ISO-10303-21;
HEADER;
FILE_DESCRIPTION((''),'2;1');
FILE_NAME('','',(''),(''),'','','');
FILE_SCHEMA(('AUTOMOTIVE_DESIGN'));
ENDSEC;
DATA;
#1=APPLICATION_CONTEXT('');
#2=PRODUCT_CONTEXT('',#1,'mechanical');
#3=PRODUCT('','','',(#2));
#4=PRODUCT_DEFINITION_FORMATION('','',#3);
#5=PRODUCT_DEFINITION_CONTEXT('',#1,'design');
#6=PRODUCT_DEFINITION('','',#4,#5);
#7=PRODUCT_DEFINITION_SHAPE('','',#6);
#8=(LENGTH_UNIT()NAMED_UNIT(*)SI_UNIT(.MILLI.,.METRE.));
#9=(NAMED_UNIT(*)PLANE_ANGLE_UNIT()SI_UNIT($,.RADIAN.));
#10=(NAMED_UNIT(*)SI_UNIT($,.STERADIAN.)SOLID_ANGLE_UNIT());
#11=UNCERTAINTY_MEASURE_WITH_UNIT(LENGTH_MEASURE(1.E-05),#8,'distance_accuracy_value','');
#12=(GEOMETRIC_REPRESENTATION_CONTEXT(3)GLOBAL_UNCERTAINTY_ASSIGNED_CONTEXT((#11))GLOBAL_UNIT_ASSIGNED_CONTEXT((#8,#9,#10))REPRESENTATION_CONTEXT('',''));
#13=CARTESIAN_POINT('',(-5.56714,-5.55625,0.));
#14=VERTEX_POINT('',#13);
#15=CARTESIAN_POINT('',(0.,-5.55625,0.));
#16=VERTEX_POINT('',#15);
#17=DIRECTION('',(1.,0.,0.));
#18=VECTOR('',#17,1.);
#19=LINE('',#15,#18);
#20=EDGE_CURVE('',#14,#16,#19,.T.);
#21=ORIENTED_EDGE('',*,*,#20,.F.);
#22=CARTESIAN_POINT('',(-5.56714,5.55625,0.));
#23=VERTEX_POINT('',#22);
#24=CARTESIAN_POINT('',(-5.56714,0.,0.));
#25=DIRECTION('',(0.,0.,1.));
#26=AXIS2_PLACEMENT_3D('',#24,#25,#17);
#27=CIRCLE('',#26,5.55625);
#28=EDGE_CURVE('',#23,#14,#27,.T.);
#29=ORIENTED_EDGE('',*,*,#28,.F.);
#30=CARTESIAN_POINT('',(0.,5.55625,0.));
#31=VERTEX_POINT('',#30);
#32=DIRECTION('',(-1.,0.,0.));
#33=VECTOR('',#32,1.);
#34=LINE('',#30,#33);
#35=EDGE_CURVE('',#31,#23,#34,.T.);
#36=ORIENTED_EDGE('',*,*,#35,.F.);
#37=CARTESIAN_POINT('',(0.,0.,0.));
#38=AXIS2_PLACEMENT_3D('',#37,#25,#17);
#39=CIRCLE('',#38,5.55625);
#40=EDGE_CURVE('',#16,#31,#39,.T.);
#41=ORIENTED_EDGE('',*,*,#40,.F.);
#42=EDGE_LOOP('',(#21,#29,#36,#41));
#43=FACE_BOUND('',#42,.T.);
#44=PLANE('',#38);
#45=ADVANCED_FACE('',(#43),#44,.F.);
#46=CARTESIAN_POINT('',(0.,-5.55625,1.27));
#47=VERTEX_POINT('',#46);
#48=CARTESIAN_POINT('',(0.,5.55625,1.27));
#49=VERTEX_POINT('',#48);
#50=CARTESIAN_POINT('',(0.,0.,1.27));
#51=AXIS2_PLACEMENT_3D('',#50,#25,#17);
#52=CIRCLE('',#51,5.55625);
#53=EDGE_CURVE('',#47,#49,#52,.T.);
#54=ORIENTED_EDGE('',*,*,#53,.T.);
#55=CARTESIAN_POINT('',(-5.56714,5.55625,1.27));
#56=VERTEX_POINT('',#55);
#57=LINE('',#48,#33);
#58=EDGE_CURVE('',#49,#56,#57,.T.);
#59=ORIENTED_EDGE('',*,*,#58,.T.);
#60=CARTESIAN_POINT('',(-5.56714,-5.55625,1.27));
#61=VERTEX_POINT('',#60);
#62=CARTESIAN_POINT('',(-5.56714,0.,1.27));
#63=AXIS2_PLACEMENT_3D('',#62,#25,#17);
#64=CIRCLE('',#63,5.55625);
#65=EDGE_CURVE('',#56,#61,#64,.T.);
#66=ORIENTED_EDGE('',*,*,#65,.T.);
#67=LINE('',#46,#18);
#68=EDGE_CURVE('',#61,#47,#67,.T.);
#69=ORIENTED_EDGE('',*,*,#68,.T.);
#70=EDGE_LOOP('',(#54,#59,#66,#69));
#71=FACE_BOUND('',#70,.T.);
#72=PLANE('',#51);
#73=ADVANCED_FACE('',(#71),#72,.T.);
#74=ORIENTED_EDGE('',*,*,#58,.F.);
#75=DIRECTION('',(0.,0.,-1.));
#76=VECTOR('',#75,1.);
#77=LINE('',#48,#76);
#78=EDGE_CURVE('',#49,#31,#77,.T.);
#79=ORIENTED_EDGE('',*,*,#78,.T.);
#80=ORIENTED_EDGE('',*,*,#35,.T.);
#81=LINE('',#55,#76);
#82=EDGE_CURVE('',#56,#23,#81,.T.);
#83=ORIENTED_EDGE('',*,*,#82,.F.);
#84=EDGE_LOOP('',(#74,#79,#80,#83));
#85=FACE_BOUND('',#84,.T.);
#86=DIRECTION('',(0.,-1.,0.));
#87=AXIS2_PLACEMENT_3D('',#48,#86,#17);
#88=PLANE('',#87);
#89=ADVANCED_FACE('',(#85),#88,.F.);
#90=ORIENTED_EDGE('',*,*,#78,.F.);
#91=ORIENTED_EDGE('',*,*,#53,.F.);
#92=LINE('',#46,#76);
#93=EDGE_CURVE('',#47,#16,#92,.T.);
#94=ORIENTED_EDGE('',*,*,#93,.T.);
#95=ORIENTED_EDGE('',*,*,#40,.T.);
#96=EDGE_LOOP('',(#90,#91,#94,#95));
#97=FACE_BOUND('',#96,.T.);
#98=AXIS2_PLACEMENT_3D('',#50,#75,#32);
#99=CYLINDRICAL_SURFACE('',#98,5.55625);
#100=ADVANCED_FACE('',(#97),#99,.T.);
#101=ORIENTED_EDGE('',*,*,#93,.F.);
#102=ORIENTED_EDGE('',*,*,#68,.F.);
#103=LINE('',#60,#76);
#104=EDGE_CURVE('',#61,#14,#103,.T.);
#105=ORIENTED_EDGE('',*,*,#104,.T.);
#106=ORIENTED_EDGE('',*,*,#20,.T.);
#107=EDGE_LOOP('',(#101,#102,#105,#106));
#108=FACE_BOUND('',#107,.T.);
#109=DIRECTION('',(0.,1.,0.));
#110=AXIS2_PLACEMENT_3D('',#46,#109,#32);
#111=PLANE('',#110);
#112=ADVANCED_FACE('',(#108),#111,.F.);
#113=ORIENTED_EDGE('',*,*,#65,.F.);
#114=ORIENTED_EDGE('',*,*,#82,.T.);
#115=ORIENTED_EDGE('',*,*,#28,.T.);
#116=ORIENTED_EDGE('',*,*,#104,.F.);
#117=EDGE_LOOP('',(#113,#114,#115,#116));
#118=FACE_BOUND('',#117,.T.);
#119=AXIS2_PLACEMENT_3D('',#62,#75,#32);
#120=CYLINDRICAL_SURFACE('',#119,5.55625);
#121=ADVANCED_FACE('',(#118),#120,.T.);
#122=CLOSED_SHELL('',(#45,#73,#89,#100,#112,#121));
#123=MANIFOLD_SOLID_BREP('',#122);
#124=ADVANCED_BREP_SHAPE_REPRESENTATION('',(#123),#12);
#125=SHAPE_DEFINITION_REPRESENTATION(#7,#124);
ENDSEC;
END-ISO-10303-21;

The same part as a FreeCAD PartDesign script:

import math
import FreeCAD as App
import Part
import Sketcher
from FreeCAD import Vector
Q = App.Units.Quantity

doc = App.newDocument("Part")
params = doc.addObject("Spreadsheet::Sheet", "Params")
for row, (alias, value) in enumerate([
    ("sketch1_radius", "0.21875 in"),
    ("pad1_length", "0.05 in"),
], start=1):
    params.set(f"A{row}", alias)
    params.set(f"B{row}", "=" + value)
    params.setAlias(f"B{row}", alias)

body = doc.addObject("PartDesign::Body", "Body")

sketch1 = body.newObject("Sketcher::SketchObject", "Sketch")
sketch1.AttachmentSupport = (doc.getObject("XY_Plane"), [""])
sketch1.MapMode = "FlatFace"
sketch1.addGeometry(Part.LineSegment(Vector(0, 5.55625, 0), Vector(-5.56714, 5.55625, 0)), False)
sketch1.addGeometry(Part.ArcOfCircle(Part.Circle(Vector(-5.56714, 0, 0), Vector(0, 0, 1), 5.55625), math.radians(90), math.radians(270)), False)
sketch1.addGeometry(Part.LineSegment(Vector(-5.56714, -5.55625, 0), Vector(0, -5.55625, 0)), False)
sketch1.addGeometry(Part.ArcOfCircle(Part.Circle(Vector(0, 0, 0), Vector(0, 0, 1), 5.55625), math.radians(-90), math.radians(90)), False)
sketch1.addConstraint(Sketcher.Constraint("Tangent", 0, 2, 1, 1))
sketch1.addConstraint(Sketcher.Constraint("Tangent", 1, 2, 2, 1))
sketch1.addConstraint(Sketcher.Constraint("Tangent", 2, 2, 3, 1))
sketch1.addConstraint(Sketcher.Constraint("Tangent", 3, 2, 0, 1))
sketch1.addConstraint(Sketcher.Constraint("Horizontal", 0))
sketch1.addConstraint(Sketcher.Constraint("Horizontal", 2))
sketch1.addConstraint(Sketcher.Constraint("Coincident", 3, 3, -1, 1))
sketch1.addConstraint(Sketcher.Constraint("Radius", 1, Q("0.21875 in")))
sketch1.addConstraint(Sketcher.Constraint("DistanceX", 0, 2, 0, 1, 5.56714))
sketch1.setExpression("Constraints[7]", "Params.sketch1_radius")
pad1 = body.newObject("PartDesign::Pad", "Pad")
pad1.Profile = sketch1
pad1.setExpression("Length", "Params.pad1_length")

doc.recompute()
